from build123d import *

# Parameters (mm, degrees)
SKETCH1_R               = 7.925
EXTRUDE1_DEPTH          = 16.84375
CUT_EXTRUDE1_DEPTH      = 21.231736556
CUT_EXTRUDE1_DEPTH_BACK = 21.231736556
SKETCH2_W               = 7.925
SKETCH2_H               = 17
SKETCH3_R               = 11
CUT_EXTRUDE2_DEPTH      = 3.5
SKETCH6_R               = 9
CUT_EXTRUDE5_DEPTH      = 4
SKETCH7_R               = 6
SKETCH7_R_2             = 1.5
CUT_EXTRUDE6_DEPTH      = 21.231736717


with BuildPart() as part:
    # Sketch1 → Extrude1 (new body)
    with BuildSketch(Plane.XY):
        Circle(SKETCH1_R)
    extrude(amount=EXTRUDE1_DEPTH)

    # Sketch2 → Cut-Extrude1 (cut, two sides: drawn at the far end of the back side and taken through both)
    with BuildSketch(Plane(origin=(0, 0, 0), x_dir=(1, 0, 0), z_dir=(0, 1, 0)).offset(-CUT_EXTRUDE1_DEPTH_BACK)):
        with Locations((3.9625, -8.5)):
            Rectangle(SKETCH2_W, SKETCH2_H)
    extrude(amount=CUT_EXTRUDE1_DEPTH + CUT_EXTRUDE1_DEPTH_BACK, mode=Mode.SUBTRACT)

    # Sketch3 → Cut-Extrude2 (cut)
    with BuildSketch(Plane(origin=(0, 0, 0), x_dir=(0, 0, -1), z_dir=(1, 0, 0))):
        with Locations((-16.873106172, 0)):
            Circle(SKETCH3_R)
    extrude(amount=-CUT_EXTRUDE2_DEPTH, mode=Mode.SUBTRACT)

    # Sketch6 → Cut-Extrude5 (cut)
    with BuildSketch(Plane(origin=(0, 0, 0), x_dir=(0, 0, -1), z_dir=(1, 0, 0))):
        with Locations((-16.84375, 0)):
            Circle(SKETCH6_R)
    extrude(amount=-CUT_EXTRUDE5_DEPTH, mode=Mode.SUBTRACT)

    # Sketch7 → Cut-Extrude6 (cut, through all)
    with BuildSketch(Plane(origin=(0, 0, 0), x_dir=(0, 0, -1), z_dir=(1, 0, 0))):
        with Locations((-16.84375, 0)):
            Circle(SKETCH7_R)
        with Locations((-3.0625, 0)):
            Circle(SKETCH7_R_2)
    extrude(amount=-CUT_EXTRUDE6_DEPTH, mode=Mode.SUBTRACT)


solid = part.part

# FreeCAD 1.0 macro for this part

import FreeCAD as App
import Part
import Sketcher
Q = App.Units.Quantity


def add_polygon(sketch, points):
    """Adds a closed chain of lines whose ends are joined by coincident constraints."""
    first, n = sketch.GeometryCount, len(points)
    for a, b in zip(points, points[1:] + points[:1]):
        sketch.addGeometry(Part.LineSegment(App.Vector(*a, 0), App.Vector(*b, 0)), False)
    for i in range(n):
        sketch.addConstraint(Sketcher.Constraint("Coincident", first + i, 2, first + (i + 1) % n, 1))

doc = App.newDocument("Part")
body = doc.addObject("PartDesign::Body", "Body")

sketch1 = doc.addObject("Sketcher::SketchObject", "Sketch")
body.addObject(sketch1)
sketch1.AttachmentSupport = (doc.XY_Plane, [""])
sketch1.MapMode = "FlatFace"
sketch1.addGeometry(Part.Circle(App.Vector(0, 0, 0), App.Vector(0, 0, 1), 8), False)
sketch1.addConstraint([
    Sketcher.Constraint("Coincident", 0, 3, -1, 1),
    Sketcher.Constraint("Diameter", 0, Q("15.85 mm")),
])
pad1 = doc.addObject("PartDesign::Pad", "Pad")
body.addObject(pad1)
pad1.Profile = sketch1
pad1.Length = 16.84375

sketch2 = doc.addObject("Sketcher::SketchObject", "Sketch001")
body.addObject(sketch2)
sketch2.AttachmentSupport = (doc.XZ_Plane, [""])
sketch2.MapMode = "FlatFace"
add_polygon(sketch2, [(0, 0), (0, 17), (8, 17), (8, 0)])
sketch2.addConstraint([
    Sketcher.Constraint("Vertical", 0),
    Sketcher.Constraint("Horizontal", 1),
    Sketcher.Constraint("Vertical", 2),
    Sketcher.Constraint("Horizontal", 3),
    Sketcher.Constraint("Coincident", 3, 2, -1, 1),
    Sketcher.Constraint("DistanceY", 0, 1, 0, 2, Q("17 mm")),
    Sketcher.Constraint("DistanceX", 1, 1, 1, 2, Q("7.925 mm")),
])
pocket1 = doc.addObject("PartDesign::Pocket", "Pocket")
body.addObject(pocket1)
pocket1.Profile = sketch2
pocket1.Type = "ThroughAll"
pocket1.Midplane = True

sketch3 = doc.addObject("Sketcher::SketchObject", "Sketch002")
body.addObject(sketch3)
sketch3.AttachmentSupport = (doc.YZ_Plane, [""])
sketch3.MapMode = "FlatFace"
sketch3.addGeometry(Part.Circle(App.Vector(0, 17, 0), App.Vector(0, 0, 1), 11), False)
sketch3.addConstraint([
    Sketcher.Constraint("PointOnObject", 0, 3, -2),
    Sketcher.Constraint("Diameter", 0, Q("22 mm")),
    Sketcher.Constraint("DistanceY", -1, 1, 0, 3, Q("16.873106 mm")),
])
pocket2 = doc.addObject("PartDesign::Pocket", "Pocket001")
body.addObject(pocket2)
pocket2.Profile = sketch3
pocket2.Length = 3.5

sketch4 = doc.addObject("Sketcher::SketchObject", "Sketch003")
body.addObject(sketch4)
sketch4.AttachmentSupport = (doc.YZ_Plane, [""])
sketch4.MapMode = "FlatFace"
sketch4.addGeometry(Part.Circle(App.Vector(0, 17, 0), App.Vector(0, 0, 1), 9), False)
sketch4.addConstraint([
    Sketcher.Constraint("PointOnObject", 0, 3, -2),
    Sketcher.Constraint("Diameter", 0, Q("18 mm")),
    Sketcher.Constraint("DistanceY", -1, 1, 0, 3, Q("16.84375 mm")),
])
pocket3 = doc.addObject("PartDesign::Pocket", "Pocket002")
body.addObject(pocket3)
pocket3.Profile = sketch4
pocket3.Length = 4

sketch5 = doc.addObject("Sketcher::SketchObject", "Sketch004")
body.addObject(sketch5)
sketch5.AttachmentSupport = (doc.YZ_Plane, [""])
sketch5.MapMode = "FlatFace"
sketch5.addGeometry([
    Part.Circle(App.Vector(0, 16.8, 0), App.Vector(0, 0, 1), 6),
    Part.Circle(App.Vector(0, 3.1, 0), App.Vector(0, 0, 1), 1.5),
], False)
sketch5.addConstraint([
    Sketcher.Constraint("PointOnObject", 0, 3, -2),
    Sketcher.Constraint("PointOnObject", 1, 3, -2),
    Sketcher.Constraint("Diameter", 0, Q("12 mm")),
    Sketcher.Constraint("Diameter", 1, Q("3 mm")),
    Sketcher.Constraint("DistanceY", -1, 1, 1, 3, Q("3.0625 mm")),
    Sketcher.Constraint("DistanceY", -1, 1, 0, 3, Q("16.84375 mm")),
])
pocket4 = doc.addObject("PartDesign::Pocket", "Pocket003")
body.addObject(pocket4)
pocket4.Profile = sketch5
pocket4.Type = "ThroughAll"

doc.recompute()
